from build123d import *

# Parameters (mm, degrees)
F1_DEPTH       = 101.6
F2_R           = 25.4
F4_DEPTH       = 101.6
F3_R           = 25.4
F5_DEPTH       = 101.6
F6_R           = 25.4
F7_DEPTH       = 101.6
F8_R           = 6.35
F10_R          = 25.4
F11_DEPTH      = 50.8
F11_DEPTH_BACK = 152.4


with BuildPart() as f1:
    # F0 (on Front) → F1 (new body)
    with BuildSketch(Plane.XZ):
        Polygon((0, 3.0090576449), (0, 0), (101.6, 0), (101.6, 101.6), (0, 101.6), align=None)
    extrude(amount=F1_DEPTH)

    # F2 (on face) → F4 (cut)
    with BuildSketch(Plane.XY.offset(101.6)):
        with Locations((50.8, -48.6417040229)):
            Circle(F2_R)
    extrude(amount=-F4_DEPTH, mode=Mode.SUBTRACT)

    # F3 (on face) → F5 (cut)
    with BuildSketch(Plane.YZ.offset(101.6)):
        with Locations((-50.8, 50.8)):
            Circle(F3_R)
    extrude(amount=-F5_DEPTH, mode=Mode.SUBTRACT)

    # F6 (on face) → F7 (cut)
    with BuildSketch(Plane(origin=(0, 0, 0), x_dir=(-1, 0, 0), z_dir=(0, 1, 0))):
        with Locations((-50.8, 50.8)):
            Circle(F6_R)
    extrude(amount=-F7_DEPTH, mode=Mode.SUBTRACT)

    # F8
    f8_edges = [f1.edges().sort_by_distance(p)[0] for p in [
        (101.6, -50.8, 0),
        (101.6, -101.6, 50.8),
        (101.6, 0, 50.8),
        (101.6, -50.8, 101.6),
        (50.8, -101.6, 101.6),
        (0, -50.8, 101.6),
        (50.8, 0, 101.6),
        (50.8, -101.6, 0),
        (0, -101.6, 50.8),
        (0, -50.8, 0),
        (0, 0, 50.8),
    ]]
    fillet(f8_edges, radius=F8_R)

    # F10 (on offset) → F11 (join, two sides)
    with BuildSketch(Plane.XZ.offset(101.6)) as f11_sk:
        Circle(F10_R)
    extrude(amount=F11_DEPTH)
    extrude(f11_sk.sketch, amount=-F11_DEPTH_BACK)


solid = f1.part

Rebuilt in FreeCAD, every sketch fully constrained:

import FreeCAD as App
import Part
import Sketcher
from FreeCAD import Vector
Q = App.Units.Quantity


def edges_at(feature, points):
    """Names of the edges that pass closest to the given points."""
    edges = feature.Shape.Edges
    near = lambda p: min(range(len(edges)), key=lambda i: edges[i].distToShape(Part.Vertex(*p))[0])
    return sorted({f"Edge{near(p) + 1}" for p in points})

doc = App.newDocument("Part")
body = doc.addObject("PartDesign::Body", "Body")

# Sketch on XZ plane
sketch1 = body.newObject("Sketcher::SketchObject", "Sketch")
sketch1.AttachmentSupport = (doc.getObject("XZ_Plane"), [""])
sketch1.MapMode = "FlatFace"
sketch1.addGeometry([
    Part.LineSegment(Vector(0, 0, 0), Vector(102, 0, 0)),
    Part.LineSegment(Vector(102, 0, 0), Vector(102, 102, 0)),
    Part.LineSegment(Vector(102, 102, 0), Vector(0, 102, 0)),
    Part.LineSegment(Vector(0, 102, 0), Vector(0, 0, 0)),
], False)
sketch1.addConstraint([
    Sketcher.Constraint("Coincident", 0, 2, 1, 1),
    Sketcher.Constraint("Coincident", 1, 2, 2, 1),
    Sketcher.Constraint("Coincident", 2, 2, 3, 1),
    Sketcher.Constraint("Coincident", 3, 2, 0, 1),
    Sketcher.Constraint("Horizontal", 0),
    Sketcher.Constraint("Vertical", 1),
    Sketcher.Constraint("Horizontal", 2),
    Sketcher.Constraint("Vertical", 3),
    Sketcher.Constraint("Coincident", 3, 2, -1, 1),
    Sketcher.Constraint("Equal", 2, 1),
    Sketcher.Constraint("DistanceX", 0, 1, 0, 2, Q("4 in")),
])
pad1 = body.newObject("PartDesign::Pad", "Pad")
pad1.Profile = sketch1
pad1.Length = Q("4 in")

# Sketch on XY plane
sketch2 = body.newObject("Sketcher::SketchObject", "Sketch001")
sketch2.AttachmentSupport = (doc.getObject("XY_Plane"), [""])
sketch2.MapMode = "FlatFace"
sketch2.AttachmentOffset = App.Placement(Vector(0, 0, 4 * 25.4), App.Rotation())
sketch2.addGeometry(Part.Circle(Vector(51, -49, 0), Vector(0, 0, 1), 25), False)
sketch2.addConstraint([
    Sketcher.Constraint("Diameter", 0, Q("2 in")),
    Sketcher.Constraint("DistanceX", -1, 1, 0, 3, Q("2 in")),
    Sketcher.Constraint("DistanceY", 0, 3, -1, 1, Q("48.641704 mm")),
])
pocket1 = body.newObject("PartDesign::Pocket", "Pocket")
pocket1.Profile = sketch2
pocket1.Length = Q("4 in")

# Sketch on YZ plane
sketch3 = body.newObject("Sketcher::SketchObject", "Sketch002")
sketch3.AttachmentSupport = (doc.getObject("YZ_Plane"), [""])
sketch3.MapMode = "FlatFace"
sketch3.AttachmentOffset = App.Placement(Vector(0, 0, 4 * 25.4), App.Rotation())
sketch3.addGeometry(Part.Circle(Vector(-51, 51, 0), Vector(0, 0, 1), 25), False)
sketch3.addConstraint([
    Sketcher.Constraint("Diameter", 0, Q("2 in")),
    Sketcher.Constraint("DistanceX", 0, 3, -1, 1, Q("2 in")),
    Sketcher.Constraint("DistanceY", -1, 1, 0, 3, Q("2 in")),
])
pocket2 = body.newObject("PartDesign::Pocket", "Pocket001")
pocket2.Profile = sketch3
pocket2.Length = Q("4 in")

# Sketch on XZ plane
sketch4 = body.newObject("Sketcher::SketchObject", "Sketch003")
sketch4.AttachmentSupport = (doc.getObject("XZ_Plane"), [""])
sketch4.MapMode = "FlatFace"
sketch4.addGeometry(Part.Circle(Vector(51, 51, 0), Vector(0, 0, 1), 25), False)
sketch4.addConstraint([
    Sketcher.Constraint("Diameter", 0, Q("2 in")),
    Sketcher.Constraint("DistanceX", -1, 1, 0, 3, Q("2 in")),
    Sketcher.Constraint("DistanceY", -1, 1, 0, 3, Q("2 in")),
])
pocket3 = body.newObject("PartDesign::Pocket", "Pocket002")
pocket3.Profile = sketch4
pocket3.Length = Q("4 in")
pocket3.Reversed = True
doc.recompute()

fillet = body.newObject("PartDesign::Fillet", "Fillet")
fillet.Base = (pocket3, edges_at(pocket3, [
    (101.6, -50.8, 0),
    (101.6, -101.6, 50.8),
    (101.6, 0, 50.8),
    (101.6, -50.8, 101.6),
    (50.8, -101.6, 101.6),
    (0, -50.8, 101.6),
    (50.8, 0, 101.6),
    (50.8, -101.6, 0),
    (0, -101.6, 50.8),
    (0, -50.8, 0),
    (0, 0, 50.8),
]))
fillet.Radius = Q("0.25 in")

# Sketch on XZ plane
sketch5 = body.newObject("Sketcher::SketchObject", "Sketch004")
sketch5.AttachmentSupport = (doc.getObject("XZ_Plane"), [""])
sketch5.MapMode = "FlatFace"
sketch5.AttachmentOffset = App.Placement(Vector(0, 0, 4 * 25.4), App.Rotation())
sketch5.addGeometry(Part.Circle(Vector(0, 0, 0), Vector(0, 0, 1), 25), False)
sketch5.addConstraint([
    Sketcher.Constraint("Coincident", 0, 3, -1, 1),
    Sketcher.Constraint("Diameter", 0, Q("2 in")),
])
pad2 = body.newObject("PartDesign::Pad", "Pad001")
pad2.Profile = sketch5
pad2.Type = "TwoLengths"
pad2.Length = Q("2 in")
pad2.Length2 = Q("6 in")

doc.recompute()
